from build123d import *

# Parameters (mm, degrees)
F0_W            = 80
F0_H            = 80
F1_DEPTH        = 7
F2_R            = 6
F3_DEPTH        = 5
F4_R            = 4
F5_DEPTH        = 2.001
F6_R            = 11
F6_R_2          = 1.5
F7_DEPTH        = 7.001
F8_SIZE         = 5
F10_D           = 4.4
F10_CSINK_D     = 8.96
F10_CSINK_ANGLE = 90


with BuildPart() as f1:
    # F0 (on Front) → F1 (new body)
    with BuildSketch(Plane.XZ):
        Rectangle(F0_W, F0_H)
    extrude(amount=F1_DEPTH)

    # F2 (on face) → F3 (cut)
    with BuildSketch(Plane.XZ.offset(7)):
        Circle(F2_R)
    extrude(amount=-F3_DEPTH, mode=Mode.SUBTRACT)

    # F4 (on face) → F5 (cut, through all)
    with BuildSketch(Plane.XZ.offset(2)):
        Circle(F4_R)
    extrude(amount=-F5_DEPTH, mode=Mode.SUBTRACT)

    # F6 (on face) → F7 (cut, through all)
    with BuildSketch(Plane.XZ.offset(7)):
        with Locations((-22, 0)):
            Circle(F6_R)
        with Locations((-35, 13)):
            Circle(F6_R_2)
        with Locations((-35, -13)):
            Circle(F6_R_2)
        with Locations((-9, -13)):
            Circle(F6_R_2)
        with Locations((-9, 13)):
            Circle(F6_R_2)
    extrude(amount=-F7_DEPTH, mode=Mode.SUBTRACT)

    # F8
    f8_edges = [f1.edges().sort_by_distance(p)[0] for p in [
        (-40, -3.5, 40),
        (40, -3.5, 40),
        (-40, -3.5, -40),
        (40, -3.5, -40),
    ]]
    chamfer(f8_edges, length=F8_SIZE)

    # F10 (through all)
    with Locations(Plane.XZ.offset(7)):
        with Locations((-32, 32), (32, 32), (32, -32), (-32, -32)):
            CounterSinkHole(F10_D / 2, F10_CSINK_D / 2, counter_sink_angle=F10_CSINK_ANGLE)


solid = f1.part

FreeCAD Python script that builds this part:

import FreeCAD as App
import Part
import Sketcher

V = App.Vector


def edges_at(feature, points):
    """Names of the edges that pass closest to the given points."""
    edges = feature.Shape.Edges
    near = lambda p: min(range(len(edges)), key=lambda i: edges[i].distToShape(Part.Vertex(*p))[0])
    return sorted({f"Edge{near(p) + 1}" for p in points})


def add_polygon(sketch, points):
    """Adds a closed chain of lines whose ends are joined by coincident constraints."""
    first, n = sketch.GeometryCount, len(points)
    for a, b in zip(points, points[1:] + points[:1]):
        sketch.addGeometry(Part.LineSegment(App.Vector(*a, 0), App.Vector(*b, 0)), False)
    for i in range(n):
        sketch.addConstraint(Sketcher.Constraint("Coincident", first + i, 2, first + (i + 1) % n, 1))

doc = App.newDocument("Part")
body = doc.addObject("PartDesign::Body", "Body")

sketch1 = body.newObject("Sketcher::SketchObject", "Sketch")
sketch1.AttachmentSupport = (doc.getObject("XZ_Plane"), [""])
sketch1.MapMode = "FlatFace"
add_polygon(sketch1, [(-40, 40), (-40, -40), (40, -40), (40, 40)])
sketch1.addConstraint(Sketcher.Constraint("Vertical", 0))
sketch1.addConstraint(Sketcher.Constraint("Horizontal", 1))
sketch1.addConstraint(Sketcher.Constraint("Vertical", 2))
sketch1.addConstraint(Sketcher.Constraint("Horizontal", 3))
sketch1.addConstraint(Sketcher.Constraint("Symmetric", 0, 2, 2, 2, -1, 1))
sketch1.addConstraint(Sketcher.Constraint("Equal", 3, 0))
sketch1.addConstraint(Sketcher.Constraint("DistanceX", 1, 1, 1, 2, 80.0))
pad1 = body.newObject("PartDesign::Pad", "Pad")
pad1.Profile = sketch1
pad1.Length = 7

sketch2 = body.newObject("Sketcher::SketchObject", "Sketch001")
sketch2.AttachmentSupport = (doc.getObject("XZ_Plane"), [""])
sketch2.MapMode = "FlatFace"
sketch2.AttachmentOffset = App.Placement(V(0, 0, 7), App.Rotation())
sketch2.addGeometry(Part.Circle(V(0, 0, 0), V(0, 0, 1), 6), False)
sketch2.addConstraint(Sketcher.Constraint("Coincident", 0, 3, -1, 1))
sketch2.addConstraint(Sketcher.Constraint("Diameter", 0, 12.0))
pocket1 = body.newObject("PartDesign::Pocket", "Pocket")
pocket1.Profile = sketch2
pocket1.Length = 5

sketch3 = body.newObject("Sketcher::SketchObject", "Sketch002")
sketch3.AttachmentSupport = (doc.getObject("XZ_Plane"), [""])
sketch3.MapMode = "FlatFace"
sketch3.AttachmentOffset = App.Placement(V(0, 0, 2), App.Rotation())
sketch3.addGeometry(Part.Circle(V(0, 0, 0), V(0, 0, 1), 4), False)
sketch3.addConstraint(Sketcher.Constraint("Coincident", 0, 3, -1, 1))
sketch3.addConstraint(Sketcher.Constraint("Diameter", 0, 8.0))
pocket2 = body.newObject("PartDesign::Pocket", "Pocket001")
pocket2.Profile = sketch3
pocket2.Type = "ThroughAll"

sketch4 = body.newObject("Sketcher::SketchObject", "Sketch003")
sketch4.AttachmentSupport = (doc.getObject("XZ_Plane"), [""])
sketch4.MapMode = "FlatFace"
sketch4.AttachmentOffset = App.Placement(V(0, 0, 7), App.Rotation())
sketch4.addGeometry(Part.Circle(V(-22, 0, 0), V(0, 0, 1), 11), False)
sketch4.addGeometry(Part.Circle(V(-35, 13, 0), V(0, 0, 1), 1.5), False)
sketch4.addGeometry(Part.Circle(V(-35, -13, 0), V(0, 0, 1), 1.5), False)
sketch4.addGeometry(Part.Circle(V(-9, -13, 0), V(0, 0, 1), 1.5), False)
sketch4.addGeometry(Part.Circle(V(-9, 13, 0), V(0, 0, 1), 1.5), False)
sketch4.addConstraint(Sketcher.Constraint("Equal", 1, 2))
sketch4.addConstraint(Sketcher.Constraint("Equal", 2, 3))
sketch4.addConstraint(Sketcher.Constraint("Equal", 3, 4))
sketch4.addConstraint(Sketcher.Constraint("Symmetric", 1, 3, 2, 3, -1))
sketch4.addConstraint(Sketcher.Constraint("Symmetric", 3, 3, 4, 3, -1))
sketch4.addConstraint(Sketcher.Constraint("PointOnObject", 0, 3, -1))
sketch4.addConstraint(Sketcher.Constraint("Horizontal", 2, 3, 3, 3))
sketch4.addConstraint(Sketcher.Constraint("Diameter", 0, 22.0))
sketch4.addConstraint(Sketcher.Constraint("Diameter", 1, 3.0))
sketch4.addConstraint(Sketcher.Constraint("DistanceX", 0, 3, -1, 1, 22.0))
sketch4.addConstraint(Sketcher.Constraint("DistanceX", 1, 3, -1, 1, 35.0))
sketch4.addConstraint(Sketcher.Constraint("DistanceY", -1, 1, 1, 3, 13.0))
sketch4.addConstraint(Sketcher.Constraint("DistanceX", 3, 3, -1, 1, 9.0))
pocket3 = body.newObject("PartDesign::Pocket", "Pocket002")
pocket3.Profile = sketch4
pocket3.Type = "ThroughAll"
doc.recompute()

chamfer = body.newObject("PartDesign::Chamfer", "Chamfer")
chamfer.Base = (pocket3, edges_at(pocket3, [
    (-40, -3.5, 40),
    (40, -3.5, 40),
    (-40, -3.5, -40),
    (40, -3.5, -40),
]))
chamfer.Size = 5

sketch5 = body.newObject("Sketcher::SketchObject", "Sketch004")
sketch5.AttachmentSupport = (doc.getObject("XZ_Plane"), [""])
sketch5.MapMode = "FlatFace"
sketch5.AttachmentOffset = App.Placement(V(0, 0, 7), App.Rotation())
sketch5.addGeometry(Part.Circle(V(-32, 32, 0), V(0, 0, 1), 2.2), False)
sketch5.addGeometry(Part.Circle(V(32, 32, 0), V(0, 0, 1), 2.2), False)
sketch5.addGeometry(Part.Circle(V(32, -32, 0), V(0, 0, 1), 2.2), False)
sketch5.addGeometry(Part.Circle(V(-32, -32, 0), V(0, 0, 1), 2.2), False)
sketch5.addConstraint(Sketcher.Constraint("Equal", 0, 1))
sketch5.addConstraint(Sketcher.Constraint("Equal", 1, 2))
sketch5.addConstraint(Sketcher.Constraint("Equal", 2, 3))
sketch5.addConstraint(Sketcher.Constraint("Symmetric", 0, 3, 2, 3, -1, 1))
sketch5.addConstraint(Sketcher.Constraint("Symmetric", 1, 3, 3, 3, -1, 1))
sketch5.addConstraint(Sketcher.Constraint("Symmetric", 0, 3, 1, 3, -2))
sketch5.addConstraint(Sketcher.Constraint("Diameter", 0, 4.4))
sketch5.addConstraint(Sketcher.Constraint("DistanceX", 0, 3, -1, 1, 32.0))
sketch5.addConstraint(Sketcher.Constraint("DistanceY", -1, 1, 0, 3, 32.0))
doc.recompute()
hole = body.newObject("PartDesign::Hole", "Hole")
hole.Profile = sketch5
hole.ThreadType = "None"
hole.Diameter = 4.4
hole.DepthType = "ThroughAll"
hole.HoleCutType = "Countersink"
hole.HoleCutDiameter = 8.96
hole.HoleCutCountersinkAngle = 90

doc.recompute()
